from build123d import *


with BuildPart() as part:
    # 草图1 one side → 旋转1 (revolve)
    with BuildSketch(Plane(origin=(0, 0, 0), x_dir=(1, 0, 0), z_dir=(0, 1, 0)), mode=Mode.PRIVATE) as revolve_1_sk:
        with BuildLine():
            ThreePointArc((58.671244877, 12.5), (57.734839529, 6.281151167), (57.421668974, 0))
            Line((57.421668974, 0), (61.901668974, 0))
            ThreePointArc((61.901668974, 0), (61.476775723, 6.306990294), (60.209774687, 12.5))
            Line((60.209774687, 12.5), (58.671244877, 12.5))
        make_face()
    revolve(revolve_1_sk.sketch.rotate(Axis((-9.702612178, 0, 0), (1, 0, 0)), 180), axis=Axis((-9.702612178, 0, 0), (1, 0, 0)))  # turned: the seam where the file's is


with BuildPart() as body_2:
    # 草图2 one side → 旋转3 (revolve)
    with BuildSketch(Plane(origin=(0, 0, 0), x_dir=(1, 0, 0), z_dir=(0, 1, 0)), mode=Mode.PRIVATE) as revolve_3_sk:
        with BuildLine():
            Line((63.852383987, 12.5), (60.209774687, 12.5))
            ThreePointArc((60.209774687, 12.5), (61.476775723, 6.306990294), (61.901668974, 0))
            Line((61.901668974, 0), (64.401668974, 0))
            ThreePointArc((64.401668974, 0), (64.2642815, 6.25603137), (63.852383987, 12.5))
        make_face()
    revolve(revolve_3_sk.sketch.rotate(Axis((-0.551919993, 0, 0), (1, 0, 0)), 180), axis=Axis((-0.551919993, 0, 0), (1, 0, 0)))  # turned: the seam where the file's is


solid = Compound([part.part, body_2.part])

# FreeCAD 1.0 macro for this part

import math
import FreeCAD as App
import Part
import Sketcher

V = App.Vector
Q = App.Units.Quantity

doc = App.newDocument("Part")
params = doc.addObject("Spreadsheet::Sheet", "Params")
for row, (alias, value) in enumerate([
    ("sketch1_width", "4.48 mm"),
    ("revolution_angle", "360 deg"),
    ("sketch2_width", "2.5 mm"),
    ("revolution2_angle", "360 deg"),
], start=1):
    params.set(f"A{row}", alias)
    params.set(f"B{row}", "=" + value)
    params.setAlias(f"B{row}", alias)

body = doc.addObject("PartDesign::Body", "Body")

# Sketch on XZ plane
sketch1 = doc.addObject("Sketcher::SketchObject", "Sketch")
body.addObject(sketch1)
sketch1.AttachmentSupport = (doc.XZ_Plane, [""])
sketch1.MapMode = "FlatFace"
sketch1.addGeometry(Part.ArcOfCircle(Part.Circle(V(120.6, 0, 0), V(0, 0, 1), 63.1), math.radians(180), math.radians(191.42)), False)
sketch1.addGeometry(Part.LineSegment(V(57.4, 0, 0), V(61.9, 0, 0)), False)
sketch1.addGeometry(Part.ArcOfCircle(Part.Circle(V(14.9, 0, 0), V(0, 0, 1), 47), math.radians(-15.42), math.radians(0)), False)
sketch1.addGeometry(Part.LineSegment(V(60.2, -12.5, 0), V(58.7, -12.5, 0)), False)
sketch1.addConstraint(Sketcher.Constraint("Coincident", 0, 1, 1, 1))
sketch1.addConstraint(Sketcher.Constraint("Coincident", 1, 2, 2, 2))
sketch1.addConstraint(Sketcher.Constraint("Coincident", 2, 1, 3, 1))
sketch1.addConstraint(Sketcher.Constraint("Coincident", 3, 2, 0, 2))
sketch1.addConstraint(Sketcher.Constraint("Horizontal", 1))
sketch1.addConstraint(Sketcher.Constraint("Horizontal", 3))
sketch1.addConstraint(Sketcher.Constraint("PointOnObject", 0, 3, -1))
sketch1.addConstraint(Sketcher.Constraint("PointOnObject", 2, 3, -1))
sketch1.addConstraint(Sketcher.Constraint("PointOnObject", 0, 1, -1))
sketch1.addConstraint(Sketcher.Constraint("Radius", 0, Q("63.146 mm")))
sketch1.addConstraint(Sketcher.Constraint("Radius", 2, Q("47.022 mm")))
sketch1.addConstraint(Sketcher.Constraint("DistanceX", 1, 1, 1, 2, Q("4.48 mm")))
sketch1.addConstraint(Sketcher.Constraint("DistanceY", 2, 1, -1, 1, Q("12.5 mm")))
sketch1.addConstraint(Sketcher.Constraint("DistanceX", -1, 1, 0, 3, Q("120.567669 mm")))
sketch1.setExpression("Constraints[11]", "Params.sketch1_width")
revolution = doc.addObject("PartDesign::Revolution", "Revolution")
body.addObject(revolution)
revolution.Profile = sketch1
revolution.ReferenceAxis = (sketch1, ["H_Axis"])
revolution.setExpression("Angle", "Params.revolution_angle")
body2 = doc.addObject("PartDesign::Body", "Body001")

# Sketch on XZ plane
sketch2 = doc.addObject("Sketcher::SketchObject", "Sketch001")
body2.addObject(sketch2)
sketch2.AttachmentSupport = (doc.getObject("XZ_Plane001"), [""])
sketch2.MapMode = "FlatFace"
sketch2.addGeometry(Part.LineSegment(V(63.9, -12.5, 0), V(60.2, -12.5, 0)), False)
sketch2.addGeometry(Part.ArcOfCircle(Part.Circle(V(14.9, 0, 0), V(0, 0, 1), 47), math.radians(-15.42), math.radians(0)), False)
sketch2.addGeometry(Part.LineSegment(V(61.9, 0, 0), V(64.4, 0, 0)), False)
sketch2.addGeometry(Part.ArcOfCircle(Part.Circle(V(-78.1, 0, 0), V(0, 0, 1), 142.5), math.radians(-5.03), math.radians(0)), False)
sketch2.addConstraint(Sketcher.Constraint("Coincident", 0, 2, 1, 1))
sketch2.addConstraint(Sketcher.Constraint("Coincident", 1, 2, 2, 1))
sketch2.addConstraint(Sketcher.Constraint("Coincident", 2, 2, 3, 2))
sketch2.addConstraint(Sketcher.Constraint("Coincident", 3, 1, 0, 1))
sketch2.addConstraint(Sketcher.Constraint("Horizontal", 0))
sketch2.addConstraint(Sketcher.Constraint("Horizontal", 2))
sketch2.addConstraint(Sketcher.Constraint("PointOnObject", 1, 3, -1))
sketch2.addConstraint(Sketcher.Constraint("PointOnObject", 3, 3, -1))
sketch2.addConstraint(Sketcher.Constraint("PointOnObject", 1, 2, -1))
sketch2.addConstraint(Sketcher.Constraint("DistanceX", 2, 1, 2, 2, Q("2.5 mm")))
sketch2.addConstraint(Sketcher.Constraint("Radius", 1, Q("47.022 mm")))
sketch2.addConstraint(Sketcher.Constraint("Radius", 3, Q("142.505 mm")))
sketch2.addConstraint(Sketcher.Constraint("DistanceY", 0, 2, -1, 1, Q("12.5 mm")))
sketch2.addConstraint(Sketcher.Constraint("DistanceX", -1, 1, 1, 3, Q("14.879669 mm")))
sketch2.setExpression("Constraints[9]", "Params.sketch2_width")
revolution2 = doc.addObject("PartDesign::Revolution", "Revolution001")
body2.addObject(revolution2)
revolution2.Profile = sketch2
revolution2.ReferenceAxis = (sketch2, ["H_Axis"])
revolution2.setExpression("Angle", "Params.revolution2_angle")

doc.recompute()
